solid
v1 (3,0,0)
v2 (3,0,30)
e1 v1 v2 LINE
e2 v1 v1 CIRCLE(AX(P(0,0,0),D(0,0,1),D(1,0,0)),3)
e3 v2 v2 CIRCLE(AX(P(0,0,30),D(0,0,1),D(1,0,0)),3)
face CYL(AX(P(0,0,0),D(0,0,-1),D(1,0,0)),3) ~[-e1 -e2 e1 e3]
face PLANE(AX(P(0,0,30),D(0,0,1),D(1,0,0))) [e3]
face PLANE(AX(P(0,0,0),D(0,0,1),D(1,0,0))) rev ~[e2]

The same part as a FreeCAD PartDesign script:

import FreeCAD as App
import Part
import Sketcher
from FreeCAD import Vector

doc = App.newDocument("Part")
body = doc.addObject("PartDesign::Body", "Body")

# Sketch on XY plane
sketch1 = body.newObject("Sketcher::SketchObject", "Sketch")
sketch1.AttachmentSupport = (doc.getObject("XY_Plane"), [""])
sketch1.MapMode = "FlatFace"
sketch1.addGeometry(Part.Circle(Vector(0, 0, 0), Vector(0, 0, 1), 3), False)
sketch1.addConstraint([
    Sketcher.Constraint("Coincident", 0, 3, -1, 1),
    Sketcher.Constraint("Diameter", 0, 6.0),
])
pad1 = body.newObject("PartDesign::Pad", "Pad")
pad1.Profile = sketch1
pad1.Length = 30

doc.recompute()
